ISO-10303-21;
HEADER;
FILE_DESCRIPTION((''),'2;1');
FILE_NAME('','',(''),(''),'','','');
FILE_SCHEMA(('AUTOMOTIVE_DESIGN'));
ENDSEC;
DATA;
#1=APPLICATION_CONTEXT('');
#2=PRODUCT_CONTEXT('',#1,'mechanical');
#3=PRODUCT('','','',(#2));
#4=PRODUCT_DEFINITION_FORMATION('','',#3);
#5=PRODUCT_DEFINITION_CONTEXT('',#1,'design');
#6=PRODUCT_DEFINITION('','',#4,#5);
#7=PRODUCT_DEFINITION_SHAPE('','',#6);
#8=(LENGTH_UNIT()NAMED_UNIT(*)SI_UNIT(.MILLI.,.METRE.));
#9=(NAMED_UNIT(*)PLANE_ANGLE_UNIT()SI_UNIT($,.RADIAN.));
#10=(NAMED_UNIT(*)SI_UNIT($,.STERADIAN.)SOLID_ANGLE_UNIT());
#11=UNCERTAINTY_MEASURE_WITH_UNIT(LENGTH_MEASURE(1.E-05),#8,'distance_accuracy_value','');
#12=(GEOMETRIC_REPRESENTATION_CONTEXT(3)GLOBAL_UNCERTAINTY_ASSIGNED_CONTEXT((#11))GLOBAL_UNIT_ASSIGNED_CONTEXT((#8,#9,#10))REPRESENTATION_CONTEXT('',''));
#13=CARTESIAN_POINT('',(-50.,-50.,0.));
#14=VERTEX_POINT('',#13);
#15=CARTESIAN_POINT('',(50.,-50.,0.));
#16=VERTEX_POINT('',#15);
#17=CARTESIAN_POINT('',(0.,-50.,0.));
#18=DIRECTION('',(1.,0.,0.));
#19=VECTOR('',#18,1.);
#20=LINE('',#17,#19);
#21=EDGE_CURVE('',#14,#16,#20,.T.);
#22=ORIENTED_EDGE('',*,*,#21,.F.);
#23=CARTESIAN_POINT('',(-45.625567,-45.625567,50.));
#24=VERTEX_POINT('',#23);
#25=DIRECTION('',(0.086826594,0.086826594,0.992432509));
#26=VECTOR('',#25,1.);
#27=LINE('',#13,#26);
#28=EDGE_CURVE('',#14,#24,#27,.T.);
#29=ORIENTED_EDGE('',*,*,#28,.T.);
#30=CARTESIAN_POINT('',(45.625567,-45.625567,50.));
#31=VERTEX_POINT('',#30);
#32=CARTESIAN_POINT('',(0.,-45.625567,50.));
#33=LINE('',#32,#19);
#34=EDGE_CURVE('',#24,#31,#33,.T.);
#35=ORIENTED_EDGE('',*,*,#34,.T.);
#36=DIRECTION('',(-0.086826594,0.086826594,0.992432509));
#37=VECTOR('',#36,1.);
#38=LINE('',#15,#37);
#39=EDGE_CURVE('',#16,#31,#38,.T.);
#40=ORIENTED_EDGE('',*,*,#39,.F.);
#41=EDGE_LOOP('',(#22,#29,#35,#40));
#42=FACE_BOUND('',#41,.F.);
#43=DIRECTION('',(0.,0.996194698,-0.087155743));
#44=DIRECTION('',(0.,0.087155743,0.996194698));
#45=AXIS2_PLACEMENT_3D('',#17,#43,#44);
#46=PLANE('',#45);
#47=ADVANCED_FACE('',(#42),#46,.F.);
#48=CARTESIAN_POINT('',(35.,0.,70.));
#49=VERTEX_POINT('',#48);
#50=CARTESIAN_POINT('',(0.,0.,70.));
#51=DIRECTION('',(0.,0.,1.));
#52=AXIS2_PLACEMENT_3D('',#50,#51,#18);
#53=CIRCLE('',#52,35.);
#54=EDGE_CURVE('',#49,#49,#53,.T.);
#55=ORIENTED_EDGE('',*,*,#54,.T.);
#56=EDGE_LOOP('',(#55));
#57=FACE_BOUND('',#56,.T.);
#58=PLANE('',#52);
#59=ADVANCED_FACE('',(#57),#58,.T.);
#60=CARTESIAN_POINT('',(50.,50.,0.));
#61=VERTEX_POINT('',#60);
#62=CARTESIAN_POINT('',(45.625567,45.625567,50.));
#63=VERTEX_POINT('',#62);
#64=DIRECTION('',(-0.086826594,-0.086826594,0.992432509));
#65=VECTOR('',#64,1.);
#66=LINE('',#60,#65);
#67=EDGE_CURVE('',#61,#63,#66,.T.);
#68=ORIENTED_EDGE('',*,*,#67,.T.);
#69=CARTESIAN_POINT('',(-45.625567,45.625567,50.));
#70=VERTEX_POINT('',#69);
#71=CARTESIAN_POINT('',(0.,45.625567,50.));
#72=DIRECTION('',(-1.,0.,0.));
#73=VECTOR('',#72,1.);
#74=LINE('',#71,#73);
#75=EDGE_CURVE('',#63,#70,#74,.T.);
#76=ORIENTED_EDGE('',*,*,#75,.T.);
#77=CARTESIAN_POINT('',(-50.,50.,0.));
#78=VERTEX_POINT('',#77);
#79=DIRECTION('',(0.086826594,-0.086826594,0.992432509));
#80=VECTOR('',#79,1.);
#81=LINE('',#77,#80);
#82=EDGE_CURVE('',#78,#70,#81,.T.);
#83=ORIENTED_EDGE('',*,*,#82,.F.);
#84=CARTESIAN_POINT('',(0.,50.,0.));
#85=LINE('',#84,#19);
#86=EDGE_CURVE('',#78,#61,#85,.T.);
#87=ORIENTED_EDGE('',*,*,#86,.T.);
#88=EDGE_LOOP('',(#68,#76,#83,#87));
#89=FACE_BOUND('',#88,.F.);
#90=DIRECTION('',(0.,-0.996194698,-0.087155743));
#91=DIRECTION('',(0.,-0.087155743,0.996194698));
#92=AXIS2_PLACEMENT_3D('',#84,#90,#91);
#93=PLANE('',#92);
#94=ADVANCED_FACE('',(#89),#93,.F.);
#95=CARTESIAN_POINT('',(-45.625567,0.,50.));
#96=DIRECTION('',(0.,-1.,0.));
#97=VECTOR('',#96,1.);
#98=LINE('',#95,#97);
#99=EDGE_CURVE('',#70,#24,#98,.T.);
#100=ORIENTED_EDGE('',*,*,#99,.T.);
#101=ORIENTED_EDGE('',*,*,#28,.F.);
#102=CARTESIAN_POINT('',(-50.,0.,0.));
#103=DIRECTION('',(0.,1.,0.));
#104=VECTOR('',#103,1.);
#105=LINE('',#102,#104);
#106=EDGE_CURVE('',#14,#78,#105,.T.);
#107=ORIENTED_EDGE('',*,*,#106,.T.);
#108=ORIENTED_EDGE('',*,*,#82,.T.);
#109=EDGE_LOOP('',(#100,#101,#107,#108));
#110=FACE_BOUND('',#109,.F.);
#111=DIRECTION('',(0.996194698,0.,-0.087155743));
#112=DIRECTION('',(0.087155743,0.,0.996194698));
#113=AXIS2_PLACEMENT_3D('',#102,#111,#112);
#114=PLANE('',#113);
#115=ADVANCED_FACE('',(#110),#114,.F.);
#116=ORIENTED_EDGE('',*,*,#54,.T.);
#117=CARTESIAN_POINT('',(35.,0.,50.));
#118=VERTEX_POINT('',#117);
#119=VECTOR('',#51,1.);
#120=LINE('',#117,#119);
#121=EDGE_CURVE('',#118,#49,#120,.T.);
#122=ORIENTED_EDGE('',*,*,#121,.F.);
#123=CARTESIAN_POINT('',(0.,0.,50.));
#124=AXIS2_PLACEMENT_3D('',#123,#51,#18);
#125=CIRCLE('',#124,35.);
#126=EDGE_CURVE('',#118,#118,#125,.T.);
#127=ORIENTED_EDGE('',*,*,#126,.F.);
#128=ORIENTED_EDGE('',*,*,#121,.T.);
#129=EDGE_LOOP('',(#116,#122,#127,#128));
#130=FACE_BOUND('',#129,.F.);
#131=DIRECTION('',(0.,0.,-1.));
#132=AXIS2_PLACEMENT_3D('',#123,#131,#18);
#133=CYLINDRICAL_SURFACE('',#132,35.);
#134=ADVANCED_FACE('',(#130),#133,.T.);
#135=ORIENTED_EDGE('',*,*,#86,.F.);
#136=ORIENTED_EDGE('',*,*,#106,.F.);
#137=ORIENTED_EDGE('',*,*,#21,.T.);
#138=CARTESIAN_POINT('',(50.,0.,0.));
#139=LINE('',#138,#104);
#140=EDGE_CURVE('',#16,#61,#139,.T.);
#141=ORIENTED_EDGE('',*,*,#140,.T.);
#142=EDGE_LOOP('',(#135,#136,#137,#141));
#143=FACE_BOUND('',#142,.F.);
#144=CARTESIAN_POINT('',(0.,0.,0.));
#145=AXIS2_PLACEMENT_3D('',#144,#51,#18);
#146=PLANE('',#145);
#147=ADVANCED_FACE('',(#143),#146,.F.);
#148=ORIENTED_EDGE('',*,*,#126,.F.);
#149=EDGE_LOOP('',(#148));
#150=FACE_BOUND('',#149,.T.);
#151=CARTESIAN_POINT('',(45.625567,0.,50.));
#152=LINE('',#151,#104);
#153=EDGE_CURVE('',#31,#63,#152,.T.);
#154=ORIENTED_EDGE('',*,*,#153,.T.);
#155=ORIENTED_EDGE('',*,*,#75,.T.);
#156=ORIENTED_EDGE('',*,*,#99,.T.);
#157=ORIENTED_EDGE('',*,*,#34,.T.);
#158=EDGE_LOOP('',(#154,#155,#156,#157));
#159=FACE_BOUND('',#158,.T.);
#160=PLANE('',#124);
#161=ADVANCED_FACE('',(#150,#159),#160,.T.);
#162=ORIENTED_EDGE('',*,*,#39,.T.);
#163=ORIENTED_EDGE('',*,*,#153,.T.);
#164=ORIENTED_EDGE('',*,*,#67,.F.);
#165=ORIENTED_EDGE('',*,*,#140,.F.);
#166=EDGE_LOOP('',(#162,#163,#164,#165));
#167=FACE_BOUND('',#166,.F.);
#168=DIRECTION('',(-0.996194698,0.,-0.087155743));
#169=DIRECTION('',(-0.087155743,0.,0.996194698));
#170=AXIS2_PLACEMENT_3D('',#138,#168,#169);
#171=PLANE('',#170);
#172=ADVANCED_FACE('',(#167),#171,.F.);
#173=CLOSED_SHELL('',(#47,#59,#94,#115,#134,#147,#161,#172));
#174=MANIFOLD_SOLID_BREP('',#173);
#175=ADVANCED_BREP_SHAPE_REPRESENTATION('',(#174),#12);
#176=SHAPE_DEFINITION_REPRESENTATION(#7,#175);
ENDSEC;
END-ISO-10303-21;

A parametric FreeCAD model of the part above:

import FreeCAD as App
import Part
import Sketcher


def add_polygon(sketch, points):
    """Adds a closed chain of lines whose ends are joined by coincident constraints."""
    first, n = sketch.GeometryCount, len(points)
    for a, b in zip(points, points[1:] + points[:1]):
        sketch.addGeometry(Part.LineSegment(App.Vector(*a, 0), App.Vector(*b, 0)), False)
    for i in range(n):
        sketch.addConstraint(Sketcher.Constraint("Coincident", first + i, 2, first + (i + 1) % n, 1))

doc = App.newDocument("Part")
body = doc.addObject("PartDesign::Body", "Body")

# Sketch on XY plane
sketch1 = doc.addObject("Sketcher::SketchObject", "Sketch")
body.addObject(sketch1)
sketch1.AttachmentSupport = (doc.XY_Plane, [""])
sketch1.MapMode = "FlatFace"
add_polygon(sketch1, [(-50, 50), (-50, -50), (50, -50), (50, 50)])  # lines 0-3
sketch1.addConstraint([
    Sketcher.Constraint("Vertical", 0),
    Sketcher.Constraint("Horizontal", 1),
    Sketcher.Constraint("Vertical", 2),
    Sketcher.Constraint("Horizontal", 3),
    Sketcher.Constraint("Symmetric", 0, 2, 2, 2, -1, 1),
    Sketcher.Constraint("Equal", 3, 0),
    Sketcher.Constraint("DistanceX", 1, 1, 1, 2, 100.0),
])
pad1 = doc.addObject("PartDesign::Pad", "Pad")
body.addObject(pad1)
pad1.Profile = sketch1
pad1.Length = 50
pad1.TaperAngle = -5

# Sketch on XY plane
sketch2 = doc.addObject("Sketcher::SketchObject", "Sketch001")
body.addObject(sketch2)
sketch2.AttachmentSupport = (doc.XY_Plane, [""])
sketch2.MapMode = "FlatFace"
sketch2.AttachmentOffset = App.Placement(App.Vector(0, 0, 50), App.Rotation())
sketch2.addGeometry(Part.Circle(App.Vector(0, 0, 0), App.Vector(0, 0, 1), 35), False)
sketch2.addConstraint([
    Sketcher.Constraint("Coincident", 0, 3, -1, 1),
    Sketcher.Constraint("Diameter", 0, 70.0),
])
pad2 = doc.addObject("PartDesign::Pad", "Pad001")
body.addObject(pad2)
pad2.Profile = sketch2
pad2.Length = 20

doc.recompute()
